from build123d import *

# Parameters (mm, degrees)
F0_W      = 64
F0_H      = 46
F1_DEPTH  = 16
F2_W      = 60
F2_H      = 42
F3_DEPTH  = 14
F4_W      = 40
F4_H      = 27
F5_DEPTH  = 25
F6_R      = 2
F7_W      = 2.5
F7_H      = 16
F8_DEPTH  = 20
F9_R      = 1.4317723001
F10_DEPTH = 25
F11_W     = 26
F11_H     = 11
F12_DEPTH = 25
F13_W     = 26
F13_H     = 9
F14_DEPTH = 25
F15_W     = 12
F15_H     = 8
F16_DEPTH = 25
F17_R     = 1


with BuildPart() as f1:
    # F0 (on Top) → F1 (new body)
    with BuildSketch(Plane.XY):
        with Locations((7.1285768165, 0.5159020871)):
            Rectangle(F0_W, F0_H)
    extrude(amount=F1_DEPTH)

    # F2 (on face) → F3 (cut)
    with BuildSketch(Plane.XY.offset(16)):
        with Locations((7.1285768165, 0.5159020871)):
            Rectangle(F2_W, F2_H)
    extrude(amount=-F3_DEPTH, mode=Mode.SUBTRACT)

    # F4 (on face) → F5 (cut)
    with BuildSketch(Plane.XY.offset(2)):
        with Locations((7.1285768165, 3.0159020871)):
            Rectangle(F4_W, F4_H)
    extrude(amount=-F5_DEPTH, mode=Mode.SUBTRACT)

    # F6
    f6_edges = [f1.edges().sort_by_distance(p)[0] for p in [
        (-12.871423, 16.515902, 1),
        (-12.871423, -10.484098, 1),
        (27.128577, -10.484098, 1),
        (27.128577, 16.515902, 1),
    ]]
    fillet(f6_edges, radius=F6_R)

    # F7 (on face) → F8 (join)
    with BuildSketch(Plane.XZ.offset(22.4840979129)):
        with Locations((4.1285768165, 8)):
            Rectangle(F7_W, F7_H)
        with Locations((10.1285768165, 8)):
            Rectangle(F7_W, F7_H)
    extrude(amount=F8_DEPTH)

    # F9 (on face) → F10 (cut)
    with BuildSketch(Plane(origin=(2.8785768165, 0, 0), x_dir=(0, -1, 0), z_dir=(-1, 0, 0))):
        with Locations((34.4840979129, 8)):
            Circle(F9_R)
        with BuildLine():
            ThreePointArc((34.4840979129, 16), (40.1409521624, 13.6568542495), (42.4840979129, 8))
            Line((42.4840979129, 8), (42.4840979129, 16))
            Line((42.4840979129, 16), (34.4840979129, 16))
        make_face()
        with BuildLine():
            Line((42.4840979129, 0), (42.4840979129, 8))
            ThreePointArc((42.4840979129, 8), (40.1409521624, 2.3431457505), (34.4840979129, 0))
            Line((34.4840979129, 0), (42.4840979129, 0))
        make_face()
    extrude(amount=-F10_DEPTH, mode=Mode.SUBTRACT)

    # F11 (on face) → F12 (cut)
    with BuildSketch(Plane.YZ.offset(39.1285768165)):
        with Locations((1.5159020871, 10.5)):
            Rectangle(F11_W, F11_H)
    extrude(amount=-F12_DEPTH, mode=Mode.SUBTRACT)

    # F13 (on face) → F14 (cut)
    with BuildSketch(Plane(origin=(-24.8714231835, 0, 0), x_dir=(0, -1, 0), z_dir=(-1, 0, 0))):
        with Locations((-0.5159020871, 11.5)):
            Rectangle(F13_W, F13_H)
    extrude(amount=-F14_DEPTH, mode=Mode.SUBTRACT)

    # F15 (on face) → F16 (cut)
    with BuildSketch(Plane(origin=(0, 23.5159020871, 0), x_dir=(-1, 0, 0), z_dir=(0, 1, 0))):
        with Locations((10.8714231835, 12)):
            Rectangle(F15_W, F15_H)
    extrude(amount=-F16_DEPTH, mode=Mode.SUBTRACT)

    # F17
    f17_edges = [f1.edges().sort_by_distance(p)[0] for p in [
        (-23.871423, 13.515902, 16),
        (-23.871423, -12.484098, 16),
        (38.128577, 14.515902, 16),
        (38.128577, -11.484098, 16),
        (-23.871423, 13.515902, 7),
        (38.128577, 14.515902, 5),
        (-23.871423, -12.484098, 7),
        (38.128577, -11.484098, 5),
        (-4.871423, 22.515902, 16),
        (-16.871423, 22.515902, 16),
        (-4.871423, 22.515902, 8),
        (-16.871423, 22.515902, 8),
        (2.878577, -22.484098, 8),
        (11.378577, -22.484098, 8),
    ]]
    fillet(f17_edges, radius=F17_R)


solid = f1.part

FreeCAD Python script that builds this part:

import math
import FreeCAD as App
import Part
import Sketcher
from FreeCAD import Vector
Q = App.Units.Quantity


def edges_at(feature, points):
    """Names of the edges that pass closest to the given points."""
    edges = feature.Shape.Edges
    near = lambda p: min(range(len(edges)), key=lambda i: edges[i].distToShape(Part.Vertex(*p))[0])
    return sorted({f"Edge{near(p) + 1}" for p in points})


def add_polygon(sketch, points):
    """Adds a closed chain of lines whose ends are joined by coincident constraints."""
    first, n = sketch.GeometryCount, len(points)
    for a, b in zip(points, points[1:] + points[:1]):
        sketch.addGeometry(Part.LineSegment(App.Vector(*a, 0), App.Vector(*b, 0)), False)
    for i in range(n):
        sketch.addConstraint(Sketcher.Constraint("Coincident", first + i, 2, first + (i + 1) % n, 1))

doc = App.newDocument("Part")
body = doc.addObject("PartDesign::Body", "Body")

# Sketch on XY plane
sketch1 = doc.addObject("Sketcher::SketchObject", "Sketch")
body.addObject(sketch1)
sketch1.AttachmentSupport = (doc.XY_Plane, [""])
sketch1.MapMode = "FlatFace"
add_polygon(sketch1, [(-25, 24), (-25, -22), (39, -22), (39, 24)])  # lines 0-3
sketch1.addConstraint(Sketcher.Constraint("Vertical", 0))
sketch1.addConstraint(Sketcher.Constraint("Horizontal", 1))
sketch1.addConstraint(Sketcher.Constraint("Vertical", 2))
sketch1.addConstraint(Sketcher.Constraint("Horizontal", 3))
sketch1.addConstraint(Sketcher.Constraint("DistanceX", 1, 1, 1, 2, Q("64 mm")))
sketch1.addConstraint(Sketcher.Constraint("DistanceY", 0, 2, 0, 1, Q("46 mm")))
sketch1.addConstraint(Sketcher.Constraint("DistanceX", 0, 2, -1, 1, Q("24.871423 mm")))
sketch1.addConstraint(Sketcher.Constraint("DistanceY", 0, 2, -1, 1, Q("22.484098 mm")))
pad1 = doc.addObject("PartDesign::Pad", "Pad")
body.addObject(pad1)
pad1.Profile = sketch1
pad1.Length = 16

# Sketch on XY plane
sketch2 = doc.addObject("Sketcher::SketchObject", "Sketch001")
body.addObject(sketch2)
sketch2.AttachmentSupport = (doc.XY_Plane, [""])
sketch2.MapMode = "FlatFace"
sketch2.AttachmentOffset = App.Placement(Vector(0, 0, 16), App.Rotation())
add_polygon(sketch2, [(-23, 22), (-23, -20), (37, -20), (37, 22)])  # lines 0-3
sketch2.addConstraint(Sketcher.Constraint("Vertical", 0))
sketch2.addConstraint(Sketcher.Constraint("Horizontal", 1))
sketch2.addConstraint(Sketcher.Constraint("Vertical", 2))
sketch2.addConstraint(Sketcher.Constraint("Horizontal", 3))
sketch2.addConstraint(Sketcher.Constraint("DistanceX", 1, 1, 1, 2, Q("60 mm")))
sketch2.addConstraint(Sketcher.Constraint("DistanceY", 0, 2, 0, 1, Q("42 mm")))
sketch2.addConstraint(Sketcher.Constraint("DistanceX", 0, 2, -1, 1, Q("22.871423 mm")))
sketch2.addConstraint(Sketcher.Constraint("DistanceY", 0, 2, -1, 1, Q("20.484098 mm")))
pocket1 = doc.addObject("PartDesign::Pocket", "Pocket")
body.addObject(pocket1)
pocket1.Profile = sketch2
pocket1.Length = 14

# Sketch on XY plane
sketch3 = doc.addObject("Sketcher::SketchObject", "Sketch002")
body.addObject(sketch3)
sketch3.AttachmentSupport = (doc.XY_Plane, [""])
sketch3.MapMode = "FlatFace"
sketch3.AttachmentOffset = App.Placement(Vector(0, 0, 2), App.Rotation())
add_polygon(sketch3, [(-13, 17), (-13, -10), (27, -10), (27, 17)])  # lines 0-3
sketch3.addConstraint(Sketcher.Constraint("Vertical", 0))
sketch3.addConstraint(Sketcher.Constraint("Horizontal", 1))
sketch3.addConstraint(Sketcher.Constraint("Vertical", 2))
sketch3.addConstraint(Sketcher.Constraint("Horizontal", 3))
sketch3.addConstraint(Sketcher.Constraint("DistanceX", 1, 1, 1, 2, Q("40 mm")))
sketch3.addConstraint(Sketcher.Constraint("DistanceY", 0, 2, 0, 1, Q("27 mm")))
sketch3.addConstraint(Sketcher.Constraint("DistanceX", 0, 2, -1, 1, Q("12.871423 mm")))
sketch3.addConstraint(Sketcher.Constraint("DistanceY", 0, 2, -1, 1, Q("10.484098 mm")))
pocket2 = doc.addObject("PartDesign::Pocket", "Pocket001")
body.addObject(pocket2)
pocket2.Profile = sketch3
pocket2.Length = 25
doc.recompute()

fillet = doc.addObject("PartDesign::Fillet", "Fillet")
body.addObject(fillet)
fillet.Base = (pocket2, edges_at(pocket2, [
    (-12.871, 16.516, 1),
    (-12.871, -10.484, 1),
    (27.129, -10.484, 1),
    (27.129, 16.516, 1),
]))
fillet.Radius = 2

# Sketch on XZ plane
sketch4 = doc.addObject("Sketcher::SketchObject", "Sketch003")
body.addObject(sketch4)
sketch4.AttachmentSupport = (doc.XZ_Plane, [""])
sketch4.MapMode = "FlatFace"
sketch4.AttachmentOffset = App.Placement(Vector(0, 0, 22.484098), App.Rotation())
add_polygon(sketch4, [(2.9, 16), (2.9, 0), (5.4, 0), (5.4, 16)])  # lines 0-3
add_polygon(sketch4, [(8.9, 16), (8.9, 0), (11.4, 0), (11.4, 16)])  # lines 4-7
sketch4.addConstraint(Sketcher.Constraint("Vertical", 0))
sketch4.addConstraint(Sketcher.Constraint("Horizontal", 1))
sketch4.addConstraint(Sketcher.Constraint("Vertical", 2))
sketch4.addConstraint(Sketcher.Constraint("Horizontal", 3))
sketch4.addConstraint(Sketcher.Constraint("Vertical", 4))
sketch4.addConstraint(Sketcher.Constraint("Horizontal", 5))
sketch4.addConstraint(Sketcher.Constraint("Vertical", 6))
sketch4.addConstraint(Sketcher.Constraint("Horizontal", 7))
sketch4.addConstraint(Sketcher.Constraint("PointOnObject", 0, 2, -1))
sketch4.addConstraint(Sketcher.Constraint("PointOnObject", 4, 2, -1))
sketch4.addConstraint(Sketcher.Constraint("Horizontal", 3, 2, 6, 2))
sketch4.addConstraint(Sketcher.Constraint("Equal", 3, 5))
sketch4.addConstraint(Sketcher.Constraint("DistanceY", 0, 2, 0, 1, Q("16 mm")))
sketch4.addConstraint(Sketcher.Constraint("DistanceX", 1, 1, 1, 2, Q("2.5 mm")))
sketch4.addConstraint(Sketcher.Constraint("DistanceX", 0, 2, 4, 2, Q("6 mm")))
sketch4.addConstraint(Sketcher.Constraint("DistanceX", -1, 1, 0, 2, Q("2.878577 mm")))
pad2 = doc.addObject("PartDesign::Pad", "Pad001")
body.addObject(pad2)
pad2.Profile = sketch4
pad2.Length = 20

# Sketch on YZ plane
sketch5 = doc.addObject("Sketcher::SketchObject", "Sketch004")
body.addObject(sketch5)
sketch5.AttachmentSupport = (doc.YZ_Plane, [""])
sketch5.MapMode = "FlatFace"
sketch5.AttachmentOffset = App.Placement(Vector(0, 0, 2.878577), App.Rotation())
sketch5.addGeometry(Part.Circle(Vector(-34.5, 8, 0), Vector(0, 0, 1), 1.4), False)
sketch5.addGeometry(Part.ArcOfCircle(Part.Circle(Vector(-34.5, 8, 0), Vector(0, 0, 1), 8), math.radians(90), math.radians(180)), False)
sketch5.addGeometry(Part.LineSegment(Vector(-42.5, 8, 0), Vector(-42.5, 16, 0)), False)
sketch5.addGeometry(Part.LineSegment(Vector(-42.5, 16, 0), Vector(-34.5, 16, 0)), False)
sketch5.addGeometry(Part.LineSegment(Vector(-42.5, 0, 0), Vector(-42.5, 8, 0)), False)
sketch5.addGeometry(Part.ArcOfCircle(Part.Circle(Vector(-34.5, 8, 0), Vector(0, 0, 1), 8), math.radians(180), math.radians(270)), False)
sketch5.addGeometry(Part.LineSegment(Vector(-34.5, 0, 0), Vector(-42.5, 0, 0)), False)
sketch5.addConstraint(Sketcher.Constraint("Tangent", 1, 2, 2, 1))
sketch5.addConstraint(Sketcher.Constraint("Coincident", 2, 2, 3, 1))
sketch5.addConstraint(Sketcher.Constraint("Tangent", 3, 2, 1, 1))
sketch5.addConstraint(Sketcher.Constraint("Tangent", 4, 2, 5, 1))
sketch5.addConstraint(Sketcher.Constraint("Tangent", 5, 2, 6, 1))
sketch5.addConstraint(Sketcher.Constraint("Coincident", 6, 2, 4, 1))
sketch5.addConstraint(Sketcher.Constraint("Vertical", 2))
sketch5.addConstraint(Sketcher.Constraint("Horizontal", 3))
sketch5.addConstraint(Sketcher.Constraint("Vertical", 4))
sketch5.addConstraint(Sketcher.Constraint("Horizontal", 6))
sketch5.addConstraint(Sketcher.Constraint("Coincident", 1, 3, 0, 3))
sketch5.addConstraint(Sketcher.Constraint("Coincident", 5, 3, 0, 3))
sketch5.addConstraint(Sketcher.Constraint("Equal", 1, 5))
sketch5.addConstraint(Sketcher.Constraint("PointOnObject", 5, 2, -1))
sketch5.addConstraint(Sketcher.Constraint("Radius", 1, Q("8 mm")))
sketch5.addConstraint(Sketcher.Constraint("Diameter", 0, Q("2.863545 mm")))
sketch5.addConstraint(Sketcher.Constraint("DistanceX", 0, 3, -1, 1, Q("34.484098 mm")))
pocket3 = doc.addObject("PartDesign::Pocket", "Pocket002")
body.addObject(pocket3)
pocket3.Profile = sketch5
pocket3.Length = 25
pocket3.Reversed = True

# Sketch on YZ plane
sketch6 = doc.addObject("Sketcher::SketchObject", "Sketch005")
body.addObject(sketch6)
sketch6.AttachmentSupport = (doc.YZ_Plane, [""])
sketch6.MapMode = "FlatFace"
sketch6.AttachmentOffset = App.Placement(Vector(0, 0, 39.128577), App.Rotation())
add_polygon(sketch6, [(-11, 16), (-11, 5), (15, 5), (15, 16)])  # lines 0-3
sketch6.addConstraint(Sketcher.Constraint("Vertical", 0))
sketch6.addConstraint(Sketcher.Constraint("Horizontal", 1))
sketch6.addConstraint(Sketcher.Constraint("Vertical", 2))
sketch6.addConstraint(Sketcher.Constraint("Horizontal", 3))
sketch6.addConstraint(Sketcher.Constraint("DistanceX", 1, 1, 1, 2, Q("26 mm")))
sketch6.addConstraint(Sketcher.Constraint("DistanceY", 0, 2, 0, 1, Q("11 mm")))
sketch6.addConstraint(Sketcher.Constraint("DistanceY", -1, 1, 0, 2, Q("5 mm")))
sketch6.addConstraint(Sketcher.Constraint("DistanceX", 0, 2, -1, 1, Q("11.484098 mm")))
pocket4 = doc.addObject("PartDesign::Pocket", "Pocket003")
body.addObject(pocket4)
pocket4.Profile = sketch6
pocket4.Length = 25

# Sketch on YZ plane
sketch7 = doc.addObject("Sketcher::SketchObject", "Sketch006")
body.addObject(sketch7)
sketch7.AttachmentSupport = (doc.YZ_Plane, [""])
sketch7.MapMode = "FlatFace"
sketch7.AttachmentOffset = App.Placement(Vector(0, 0, -24.871423), App.Rotation())
add_polygon(sketch7, [(14, 16), (14, 7), (-12, 7), (-12, 16)])  # lines 0-3
sketch7.addConstraint(Sketcher.Constraint("Vertical", 0))
sketch7.addConstraint(Sketcher.Constraint("Horizontal", 1))
sketch7.addConstraint(Sketcher.Constraint("Vertical", 2))
sketch7.addConstraint(Sketcher.Constraint("Horizontal", 3))
sketch7.addConstraint(Sketcher.Constraint("DistanceX", 1, 2, 1, 1, Q("26 mm")))
sketch7.addConstraint(Sketcher.Constraint("DistanceY", 0, 2, 0, 1, Q("9 mm")))
sketch7.addConstraint(Sketcher.Constraint("DistanceY", -1, 1, 0, 2, Q("7 mm")))
sketch7.addConstraint(Sketcher.Constraint("DistanceX", -1, 1, 0, 2, Q("13.515902 mm")))
pocket5 = doc.addObject("PartDesign::Pocket", "Pocket004")
body.addObject(pocket5)
pocket5.Profile = sketch7
pocket5.Length = 25
pocket5.Reversed = True

# Sketch on XZ plane
sketch8 = doc.addObject("Sketcher::SketchObject", "Sketch007")
body.addObject(sketch8)
sketch8.AttachmentSupport = (doc.XZ_Plane, [""])
sketch8.MapMode = "FlatFace"
sketch8.AttachmentOffset = App.Placement(Vector(0, 0, -23.515902), App.Rotation())
add_polygon(sketch8, [(-5, 16), (-5, 8), (-17, 8), (-17, 16)])  # lines 0-3
sketch8.addConstraint(Sketcher.Constraint("Vertical", 0))
sketch8.addConstraint(Sketcher.Constraint("Horizontal", 1))
sketch8.addConstraint(Sketcher.Constraint("Vertical", 2))
sketch8.addConstraint(Sketcher.Constraint("Horizontal", 3))
sketch8.addConstraint(Sketcher.Constraint("DistanceX", 1, 2, 1, 1, Q("12 mm")))
sketch8.addConstraint(Sketcher.Constraint("DistanceY", 0, 2, 0, 1, Q("8 mm")))
sketch8.addConstraint(Sketcher.Constraint("DistanceY", -1, 1, 0, 2, Q("8 mm")))
sketch8.addConstraint(Sketcher.Constraint("DistanceX", 0, 2, -1, 1, Q("4.871423 mm")))
pocket6 = doc.addObject("PartDesign::Pocket", "Pocket005")
body.addObject(pocket6)
pocket6.Profile = sketch8
pocket6.Length = 25
pocket6.Reversed = True
doc.recompute()

fillet2 = doc.addObject("PartDesign::Fillet", "Fillet001")
body.addObject(fillet2)
fillet2.Base = (pocket6, edges_at(pocket6, [
    (-23.871, 13.516, 16),
    (-23.871, -12.484, 16),
    (38.129, 14.516, 16),
    (38.129, -11.484, 16),
    (-23.871, 13.516, 7),
    (38.129, 14.516, 5),
    (-23.871, -12.484, 7),
    (38.129, -11.484, 5),
    (-4.871, 22.516, 16),
    (-16.871, 22.516, 16),
    (-4.871, 22.516, 8),
    (-16.871, 22.516, 8),
    (2.879, -22.484, 8),
    (11.379, -22.484, 8),
]))
fillet2.Radius = 1

doc.recompute()
